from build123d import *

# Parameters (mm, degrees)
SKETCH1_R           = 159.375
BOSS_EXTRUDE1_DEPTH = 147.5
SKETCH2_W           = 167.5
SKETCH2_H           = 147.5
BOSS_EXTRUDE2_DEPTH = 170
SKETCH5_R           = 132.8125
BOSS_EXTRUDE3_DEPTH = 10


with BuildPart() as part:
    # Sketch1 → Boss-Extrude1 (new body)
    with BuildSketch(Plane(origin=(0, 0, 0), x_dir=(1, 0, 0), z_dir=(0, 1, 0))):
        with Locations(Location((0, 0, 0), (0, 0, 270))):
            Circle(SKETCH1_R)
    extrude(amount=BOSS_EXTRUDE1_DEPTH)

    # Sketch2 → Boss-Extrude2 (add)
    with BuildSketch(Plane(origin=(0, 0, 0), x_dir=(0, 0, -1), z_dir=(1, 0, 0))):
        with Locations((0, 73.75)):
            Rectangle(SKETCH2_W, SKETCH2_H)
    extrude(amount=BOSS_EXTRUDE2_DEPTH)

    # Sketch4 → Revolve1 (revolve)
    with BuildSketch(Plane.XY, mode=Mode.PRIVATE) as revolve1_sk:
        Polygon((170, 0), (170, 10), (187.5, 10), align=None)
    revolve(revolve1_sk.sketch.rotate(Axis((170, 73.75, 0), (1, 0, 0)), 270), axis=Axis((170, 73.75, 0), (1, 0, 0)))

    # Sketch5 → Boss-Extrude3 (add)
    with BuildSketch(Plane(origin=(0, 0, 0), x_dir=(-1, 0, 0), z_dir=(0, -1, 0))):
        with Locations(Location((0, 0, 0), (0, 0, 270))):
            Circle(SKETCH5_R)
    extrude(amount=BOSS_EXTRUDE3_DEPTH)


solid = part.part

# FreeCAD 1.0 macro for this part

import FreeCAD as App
import Part
import Sketcher
Q = App.Units.Quantity

doc = App.newDocument("Part")
body = doc.addObject("PartDesign::Body", "Body")

# Sketch on XZ plane
sketch1 = body.newObject("Sketcher::SketchObject", "Sketch")
sketch1.AttachmentSupport = (doc.getObject("XZ_Plane"), [""])
sketch1.MapMode = "FlatFace"
sketch1.addGeometry(Part.Circle(App.Vector(0, 0, 0), App.Vector(0, 0, 1), 159), False)
sketch1.addConstraint(Sketcher.Constraint("Coincident", 0, 3, -1, 1))
sketch1.addConstraint(Sketcher.Constraint("Diameter", 0, Q("318.75 mm")))
pad1 = body.newObject("PartDesign::Pad", "Pad")
pad1.Profile = sketch1
pad1.Length = 147.5
pad1.Reversed = True

# Sketch on YZ plane
sketch2 = body.newObject("Sketcher::SketchObject", "Sketch001")
sketch2.AttachmentSupport = (doc.getObject("YZ_Plane"), [""])
sketch2.MapMode = "FlatFace"
sketch2.addGeometry(Part.LineSegment(App.Vector(148, 84, 0), App.Vector(0, 84, 0)), False)
sketch2.addGeometry(Part.LineSegment(App.Vector(0, 84, 0), App.Vector(0, -84, 0)), False)
sketch2.addGeometry(Part.LineSegment(App.Vector(0, -84, 0), App.Vector(148, -84, 0)), False)
sketch2.addGeometry(Part.LineSegment(App.Vector(148, -84, 0), App.Vector(148, 84, 0)), False)
sketch2.addConstraint(Sketcher.Constraint("Coincident", 0, 2, 1, 1))
sketch2.addConstraint(Sketcher.Constraint("Coincident", 1, 2, 2, 1))
sketch2.addConstraint(Sketcher.Constraint("Coincident", 2, 2, 3, 1))
sketch2.addConstraint(Sketcher.Constraint("Coincident", 3, 2, 0, 1))
sketch2.addConstraint(Sketcher.Constraint("Horizontal", 0))
sketch2.addConstraint(Sketcher.Constraint("Vertical", 1))
sketch2.addConstraint(Sketcher.Constraint("Horizontal", 2))
sketch2.addConstraint(Sketcher.Constraint("Vertical", 3))
sketch2.addConstraint(Sketcher.Constraint("Symmetric", 0, 2, 1, 2, -1, 1))
sketch2.addConstraint(Sketcher.Constraint("DistanceX", 0, 2, 0, 1, Q("147.5 mm")))
sketch2.addConstraint(Sketcher.Constraint("DistanceY", 1, 2, 1, 1, Q("167.5 mm")))
pad2 = body.newObject("PartDesign::Pad", "Pad001")
pad2.Profile = sketch2
pad2.Length = 170

# Sketch on XY plane
sketch3 = body.newObject("Sketcher::SketchObject", "Sketch002")
sketch3.AttachmentSupport = (doc.getObject("XY_Plane"), [""])
sketch3.MapMode = "FlatFace"
sketch3.addGeometry(Part.LineSegment(App.Vector(170, 10, 0), App.Vector(170, 0, 0)), False)
sketch3.addGeometry(Part.LineSegment(App.Vector(170, 0, 0), App.Vector(188, 10, 0)), False)
sketch3.addGeometry(Part.LineSegment(App.Vector(188, 10, 0), App.Vector(170, 10, 0)), False)
sketch3.addGeometry(Part.LineSegment(App.Vector(170, 74, 0), App.Vector(188, 74, 0)), True)  # axis
sketch3.addConstraint(Sketcher.Constraint("Coincident", 0, 2, 1, 1))
sketch3.addConstraint(Sketcher.Constraint("Coincident", 1, 2, 2, 1))
sketch3.addConstraint(Sketcher.Constraint("Coincident", 2, 2, 0, 1))
sketch3.addConstraint(Sketcher.Constraint("Vertical", 0))
sketch3.addConstraint(Sketcher.Constraint("Horizontal", 2))
sketch3.addConstraint(Sketcher.Constraint("Horizontal", 3))
sketch3.addConstraint(Sketcher.Constraint("PointOnObject", 0, 2, -1))
sketch3.addConstraint(Sketcher.Constraint("Vertical", 2, 2, 3, 1))
sketch3.addConstraint(Sketcher.Constraint("Vertical", 1, 2, 3, 2))
sketch3.addConstraint(Sketcher.Constraint("DistanceY", 0, 2, 0, 1, Q("10 mm")))
sketch3.addConstraint(Sketcher.Constraint("DistanceX", 2, 2, 2, 1, Q("17.5 mm")))
sketch3.addConstraint(Sketcher.Constraint("DistanceX", -1, 1, 0, 2, Q("170 mm")))
sketch3.addConstraint(Sketcher.Constraint("DistanceY", -1, 1, 3, 1, Q("73.75 mm")))
revolution = body.newObject("PartDesign::Revolution", "Revolution")
revolution.Profile = sketch3
revolution.ReferenceAxis = (sketch3, ["Axis0"])
revolution.Angle = 360

# Sketch on XZ plane
sketch4 = body.newObject("Sketcher::SketchObject", "Sketch003")
sketch4.AttachmentSupport = (doc.getObject("XZ_Plane"), [""])
sketch4.MapMode = "FlatFace"
sketch4.addGeometry(Part.Circle(App.Vector(0, 0, 0), App.Vector(0, 0, 1), 133), False)
sketch4.addConstraint(Sketcher.Constraint("Coincident", 0, 3, -1, 1))
sketch4.addConstraint(Sketcher.Constraint("Diameter", 0, Q("265.625 mm")))
pad3 = body.newObject("PartDesign::Pad", "Pad002")
pad3.Profile = sketch4
pad3.Length = 10

doc.recompute()
